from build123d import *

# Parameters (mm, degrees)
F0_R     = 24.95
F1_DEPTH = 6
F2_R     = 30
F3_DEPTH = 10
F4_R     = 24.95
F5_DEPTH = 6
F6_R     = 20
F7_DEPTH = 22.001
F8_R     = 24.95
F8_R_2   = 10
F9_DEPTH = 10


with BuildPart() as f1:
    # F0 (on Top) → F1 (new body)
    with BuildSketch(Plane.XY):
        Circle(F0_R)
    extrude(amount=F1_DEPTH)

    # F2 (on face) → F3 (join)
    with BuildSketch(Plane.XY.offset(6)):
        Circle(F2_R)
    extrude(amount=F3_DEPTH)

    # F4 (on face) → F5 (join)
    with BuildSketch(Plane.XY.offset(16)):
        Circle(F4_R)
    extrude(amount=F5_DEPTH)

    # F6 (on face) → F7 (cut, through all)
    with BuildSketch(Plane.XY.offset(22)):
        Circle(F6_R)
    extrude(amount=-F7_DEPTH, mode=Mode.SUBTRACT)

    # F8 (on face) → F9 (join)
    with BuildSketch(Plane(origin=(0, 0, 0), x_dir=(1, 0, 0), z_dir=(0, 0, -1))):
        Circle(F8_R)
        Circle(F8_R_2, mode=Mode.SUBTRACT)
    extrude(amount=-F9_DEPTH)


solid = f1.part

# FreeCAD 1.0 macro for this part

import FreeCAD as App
import Part
import Sketcher

V = App.Vector
Q = App.Units.Quantity

doc = App.newDocument("Part")
body = doc.addObject("PartDesign::Body", "Body")

sketch1 = body.newObject("Sketcher::SketchObject", "Sketch")
sketch1.AttachmentSupport = (doc.getObject("XY_Plane"), [""])
sketch1.MapMode = "FlatFace"
sketch1.addGeometry(Part.Circle(V(0, 0, 0), V(0, 0, 1), 25), False)
sketch1.addConstraint([
    Sketcher.Constraint("Coincident", 0, 3, -1, 1),
    Sketcher.Constraint("Diameter", 0, Q("49.9 mm")),
])
pad1 = body.newObject("PartDesign::Pad", "Pad")
pad1.Profile = sketch1
pad1.Length = 6

sketch2 = body.newObject("Sketcher::SketchObject", "Sketch001")
sketch2.AttachmentSupport = (doc.getObject("XY_Plane"), [""])
sketch2.MapMode = "FlatFace"
sketch2.AttachmentOffset = App.Placement(V(0, 0, 6), App.Rotation())
sketch2.addGeometry(Part.Circle(V(0, 0, 0), V(0, 0, 1), 30), False)
sketch2.addConstraint([
    Sketcher.Constraint("Coincident", 0, 3, -1, 1),
    Sketcher.Constraint("Diameter", 0, Q("60 mm")),
])
pad2 = body.newObject("PartDesign::Pad", "Pad001")
pad2.Profile = sketch2
pad2.Length = 10

sketch3 = body.newObject("Sketcher::SketchObject", "Sketch002")
sketch3.AttachmentSupport = (doc.getObject("XY_Plane"), [""])
sketch3.MapMode = "FlatFace"
sketch3.AttachmentOffset = App.Placement(V(0, 0, 16), App.Rotation())
sketch3.addGeometry(Part.Circle(V(0, 0, 0), V(0, 0, 1), 25), False)
sketch3.addConstraint([
    Sketcher.Constraint("Coincident", 0, 3, -1, 1),
    Sketcher.Constraint("Diameter", 0, Q("49.9 mm")),
])
pad3 = body.newObject("PartDesign::Pad", "Pad002")
pad3.Profile = sketch3
pad3.Length = 6

sketch4 = body.newObject("Sketcher::SketchObject", "Sketch003")
sketch4.AttachmentSupport = (doc.getObject("XY_Plane"), [""])
sketch4.MapMode = "FlatFace"
sketch4.AttachmentOffset = App.Placement(V(0, 0, 22), App.Rotation())
sketch4.addGeometry(Part.Circle(V(0, 0, 0), V(0, 0, 1), 20), False)
sketch4.addConstraint([
    Sketcher.Constraint("Coincident", 0, 3, -1, 1),
    Sketcher.Constraint("Diameter", 0, Q("40 mm")),
])
pocket1 = body.newObject("PartDesign::Pocket", "Pocket")
pocket1.Profile = sketch4
pocket1.Type = "ThroughAll"

sketch5 = body.newObject("Sketcher::SketchObject", "Sketch004")
sketch5.AttachmentSupport = (doc.getObject("XY_Plane"), [""])
sketch5.MapMode = "FlatFace"
sketch5.addGeometry([
    Part.Circle(V(0, 0, 0), V(0, 0, 1), 25),
    Part.Circle(V(0, 0, 0), V(0, 0, 1), 10),
], False)
sketch5.addConstraint([
    Sketcher.Constraint("Coincident", 0, 3, -1, 1),
    Sketcher.Constraint("Coincident", 1, 3, -1, 1),
    Sketcher.Constraint("Diameter", 1, Q("20 mm")),
    Sketcher.Constraint("Diameter", 0, Q("49.9 mm")),
])
pad4 = body.newObject("PartDesign::Pad", "Pad003")
pad4.Profile = sketch5
pad4.Length = 10

doc.recompute()
